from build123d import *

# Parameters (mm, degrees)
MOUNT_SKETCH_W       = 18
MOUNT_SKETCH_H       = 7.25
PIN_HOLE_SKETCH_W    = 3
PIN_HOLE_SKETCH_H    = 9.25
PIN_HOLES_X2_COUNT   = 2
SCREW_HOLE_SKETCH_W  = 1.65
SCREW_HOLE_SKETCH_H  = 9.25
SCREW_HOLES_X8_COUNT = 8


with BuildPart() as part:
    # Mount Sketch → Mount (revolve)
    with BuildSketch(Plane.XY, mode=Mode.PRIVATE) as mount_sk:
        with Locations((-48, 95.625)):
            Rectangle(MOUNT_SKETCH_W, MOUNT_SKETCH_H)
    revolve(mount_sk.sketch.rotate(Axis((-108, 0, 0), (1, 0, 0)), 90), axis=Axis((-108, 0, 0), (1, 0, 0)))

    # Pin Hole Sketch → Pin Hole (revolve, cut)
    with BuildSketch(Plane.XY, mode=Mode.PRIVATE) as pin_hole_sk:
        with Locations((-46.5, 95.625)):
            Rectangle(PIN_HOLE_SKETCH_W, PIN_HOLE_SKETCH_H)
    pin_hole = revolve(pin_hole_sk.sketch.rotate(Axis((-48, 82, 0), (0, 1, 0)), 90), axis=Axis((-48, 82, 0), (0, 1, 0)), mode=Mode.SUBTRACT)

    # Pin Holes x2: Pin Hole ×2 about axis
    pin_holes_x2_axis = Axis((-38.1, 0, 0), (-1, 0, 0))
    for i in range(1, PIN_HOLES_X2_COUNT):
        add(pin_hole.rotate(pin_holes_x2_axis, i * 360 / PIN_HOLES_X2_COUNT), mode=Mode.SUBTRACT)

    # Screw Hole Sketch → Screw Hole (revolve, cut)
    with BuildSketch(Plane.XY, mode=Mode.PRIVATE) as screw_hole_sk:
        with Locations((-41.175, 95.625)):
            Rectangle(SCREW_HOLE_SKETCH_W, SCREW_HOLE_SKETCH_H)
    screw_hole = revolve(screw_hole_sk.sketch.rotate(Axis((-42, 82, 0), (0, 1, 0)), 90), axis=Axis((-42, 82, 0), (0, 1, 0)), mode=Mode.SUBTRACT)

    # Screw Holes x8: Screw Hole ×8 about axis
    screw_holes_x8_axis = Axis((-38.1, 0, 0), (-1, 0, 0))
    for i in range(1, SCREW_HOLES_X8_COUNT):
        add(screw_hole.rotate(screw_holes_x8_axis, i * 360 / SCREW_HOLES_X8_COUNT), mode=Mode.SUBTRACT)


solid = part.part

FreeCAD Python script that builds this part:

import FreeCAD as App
import Part
import Sketcher
from FreeCAD import Vector

doc = App.newDocument("Part")
body = doc.addObject("PartDesign::Body", "Body")

sketch1 = body.newObject("Sketcher::SketchObject", "Sketch")
sketch1.AttachmentSupport = (doc.getObject("XY_Plane"), [""])
sketch1.MapMode = "FlatFace"
sketch1.addGeometry([
    Part.LineSegment(Vector(-57, 99, 0), Vector(-57, 92, 0)),
    Part.LineSegment(Vector(-57, 92, 0), Vector(-39, 92, 0)),
    Part.LineSegment(Vector(-39, 92, 0), Vector(-39, 99, 0)),
    Part.LineSegment(Vector(-39, 99, 0), Vector(-57, 99, 0)),
], False)
sketch1.addConstraint([
    Sketcher.Constraint("Coincident", 0, 2, 1, 1),
    Sketcher.Constraint("Coincident", 1, 2, 2, 1),
    Sketcher.Constraint("Coincident", 2, 2, 3, 1),
    Sketcher.Constraint("Coincident", 3, 2, 0, 1),
    Sketcher.Constraint("Vertical", 0),
    Sketcher.Constraint("Horizontal", 1),
    Sketcher.Constraint("Vertical", 2),
    Sketcher.Constraint("Horizontal", 3),
    Sketcher.Constraint("DistanceX", 1, 1, 1, 2, 18.0),
    Sketcher.Constraint("DistanceX", 0, 2, -1, 1, 57.0),
    Sketcher.Constraint("DistanceY", -1, 1, 0, 2, 92.0),
    Sketcher.Constraint("DistanceY", 0, 2, 0, 1, 7.25),
])
revolution = body.newObject("PartDesign::Revolution", "Revolution")
revolution.Profile = sketch1
revolution.ReferenceAxis = (sketch1, ["H_Axis"])
revolution.Angle = 360

sketch2 = body.newObject("Sketcher::SketchObject", "Sketch001")
sketch2.AttachmentSupport = (doc.getObject("XY_Plane"), [""])
sketch2.MapMode = "FlatFace"
sketch2.addGeometry([
    Part.LineSegment(Vector(-48, 100.2, 0), Vector(-48, 91, 0)),
    Part.LineSegment(Vector(-48, 91, 0), Vector(-45, 91, 0)),
    Part.LineSegment(Vector(-45, 91, 0), Vector(-45, 100.2, 0)),
    Part.LineSegment(Vector(-45, 100.2, 0), Vector(-48, 100.2, 0)),
], False)
sketch2.addGeometry(Part.LineSegment(Vector(-48, 91, 0), Vector(-48, 100.2, 0)), True)
sketch2.addConstraint([
    Sketcher.Constraint("Coincident", 0, 2, 1, 1),
    Sketcher.Constraint("Coincident", 1, 2, 2, 1),
    Sketcher.Constraint("Coincident", 2, 2, 3, 1),
    Sketcher.Constraint("Coincident", 3, 2, 0, 1),
    Sketcher.Constraint("Vertical", 0),
    Sketcher.Constraint("Horizontal", 1),
    Sketcher.Constraint("Vertical", 2),
    Sketcher.Constraint("Horizontal", 3),
    Sketcher.Constraint("Vertical", 4),
    Sketcher.Constraint("Coincident", 4, 1, 0, 2),
    Sketcher.Constraint("Horizontal", 2, 2, 4, 2),
    Sketcher.Constraint("DistanceX", 1, 1, 1, 2, 3.0),
    Sketcher.Constraint("DistanceX", 0, 2, -1, 1, 48.0),
    Sketcher.Constraint("DistanceY", -1, 1, 0, 2, 91.0),
    Sketcher.Constraint("DistanceY", 0, 2, 0, 1, 9.25),
])
groove = body.newObject("PartDesign::Groove", "Groove")
groove.Profile = sketch2
groove.ReferenceAxis = (sketch2, ["Axis0"])
groove.Angle = 360
doc.recompute()

polarpattern = body.newObject("PartDesign::PolarPattern", "PolarPattern")
polarpattern.Originals = [groove]
polarpattern.Axis = (doc.getObject("X_Axis"), [""])
polarpattern.Angle = 360
polarpattern.Occurrences = 2
body.Tip = polarpattern

sketch3 = body.newObject("Sketcher::SketchObject", "Sketch002")
sketch3.AttachmentSupport = (doc.getObject("XY_Plane"), [""])
sketch3.MapMode = "FlatFace"
sketch3.addGeometry([
    Part.LineSegment(Vector(-42, 100.2, 0), Vector(-42, 91, 0)),
    Part.LineSegment(Vector(-42, 91, 0), Vector(-40.4, 91, 0)),
    Part.LineSegment(Vector(-40.4, 91, 0), Vector(-40.4, 100.2, 0)),
    Part.LineSegment(Vector(-40.4, 100.2, 0), Vector(-42, 100.2, 0)),
], False)
sketch3.addGeometry(Part.LineSegment(Vector(-42, 91, 0), Vector(-42, 100.2, 0)), True)
sketch3.addConstraint([
    Sketcher.Constraint("Coincident", 0, 2, 1, 1),
    Sketcher.Constraint("Coincident", 1, 2, 2, 1),
    Sketcher.Constraint("Coincident", 2, 2, 3, 1),
    Sketcher.Constraint("Coincident", 3, 2, 0, 1),
    Sketcher.Constraint("Vertical", 0),
    Sketcher.Constraint("Horizontal", 1),
    Sketcher.Constraint("Vertical", 2),
    Sketcher.Constraint("Horizontal", 3),
    Sketcher.Constraint("Vertical", 4),
    Sketcher.Constraint("Coincident", 4, 1, 0, 2),
    Sketcher.Constraint("Horizontal", 2, 2, 4, 2),
    Sketcher.Constraint("DistanceX", 0, 2, -1, 1, 42.0),
    Sketcher.Constraint("DistanceY", -1, 1, 0, 2, 91.0),
    Sketcher.Constraint("DistanceX", 1, 1, 1, 2, 1.65),
    Sketcher.Constraint("DistanceY", 0, 2, 0, 1, 9.25),
])
groove2 = body.newObject("PartDesign::Groove", "Groove001")
groove2.Profile = sketch3
groove2.ReferenceAxis = (sketch3, ["Axis0"])
groove2.Angle = 360
doc.recompute()

polarpattern2 = body.newObject("PartDesign::PolarPattern", "PolarPattern001")
polarpattern2.Originals = [groove2]
polarpattern2.Axis = (doc.getObject("X_Axis"), [""])
polarpattern2.Angle = 360
polarpattern2.Occurrences = 8
body.Tip = polarpattern2

doc.recompute()
